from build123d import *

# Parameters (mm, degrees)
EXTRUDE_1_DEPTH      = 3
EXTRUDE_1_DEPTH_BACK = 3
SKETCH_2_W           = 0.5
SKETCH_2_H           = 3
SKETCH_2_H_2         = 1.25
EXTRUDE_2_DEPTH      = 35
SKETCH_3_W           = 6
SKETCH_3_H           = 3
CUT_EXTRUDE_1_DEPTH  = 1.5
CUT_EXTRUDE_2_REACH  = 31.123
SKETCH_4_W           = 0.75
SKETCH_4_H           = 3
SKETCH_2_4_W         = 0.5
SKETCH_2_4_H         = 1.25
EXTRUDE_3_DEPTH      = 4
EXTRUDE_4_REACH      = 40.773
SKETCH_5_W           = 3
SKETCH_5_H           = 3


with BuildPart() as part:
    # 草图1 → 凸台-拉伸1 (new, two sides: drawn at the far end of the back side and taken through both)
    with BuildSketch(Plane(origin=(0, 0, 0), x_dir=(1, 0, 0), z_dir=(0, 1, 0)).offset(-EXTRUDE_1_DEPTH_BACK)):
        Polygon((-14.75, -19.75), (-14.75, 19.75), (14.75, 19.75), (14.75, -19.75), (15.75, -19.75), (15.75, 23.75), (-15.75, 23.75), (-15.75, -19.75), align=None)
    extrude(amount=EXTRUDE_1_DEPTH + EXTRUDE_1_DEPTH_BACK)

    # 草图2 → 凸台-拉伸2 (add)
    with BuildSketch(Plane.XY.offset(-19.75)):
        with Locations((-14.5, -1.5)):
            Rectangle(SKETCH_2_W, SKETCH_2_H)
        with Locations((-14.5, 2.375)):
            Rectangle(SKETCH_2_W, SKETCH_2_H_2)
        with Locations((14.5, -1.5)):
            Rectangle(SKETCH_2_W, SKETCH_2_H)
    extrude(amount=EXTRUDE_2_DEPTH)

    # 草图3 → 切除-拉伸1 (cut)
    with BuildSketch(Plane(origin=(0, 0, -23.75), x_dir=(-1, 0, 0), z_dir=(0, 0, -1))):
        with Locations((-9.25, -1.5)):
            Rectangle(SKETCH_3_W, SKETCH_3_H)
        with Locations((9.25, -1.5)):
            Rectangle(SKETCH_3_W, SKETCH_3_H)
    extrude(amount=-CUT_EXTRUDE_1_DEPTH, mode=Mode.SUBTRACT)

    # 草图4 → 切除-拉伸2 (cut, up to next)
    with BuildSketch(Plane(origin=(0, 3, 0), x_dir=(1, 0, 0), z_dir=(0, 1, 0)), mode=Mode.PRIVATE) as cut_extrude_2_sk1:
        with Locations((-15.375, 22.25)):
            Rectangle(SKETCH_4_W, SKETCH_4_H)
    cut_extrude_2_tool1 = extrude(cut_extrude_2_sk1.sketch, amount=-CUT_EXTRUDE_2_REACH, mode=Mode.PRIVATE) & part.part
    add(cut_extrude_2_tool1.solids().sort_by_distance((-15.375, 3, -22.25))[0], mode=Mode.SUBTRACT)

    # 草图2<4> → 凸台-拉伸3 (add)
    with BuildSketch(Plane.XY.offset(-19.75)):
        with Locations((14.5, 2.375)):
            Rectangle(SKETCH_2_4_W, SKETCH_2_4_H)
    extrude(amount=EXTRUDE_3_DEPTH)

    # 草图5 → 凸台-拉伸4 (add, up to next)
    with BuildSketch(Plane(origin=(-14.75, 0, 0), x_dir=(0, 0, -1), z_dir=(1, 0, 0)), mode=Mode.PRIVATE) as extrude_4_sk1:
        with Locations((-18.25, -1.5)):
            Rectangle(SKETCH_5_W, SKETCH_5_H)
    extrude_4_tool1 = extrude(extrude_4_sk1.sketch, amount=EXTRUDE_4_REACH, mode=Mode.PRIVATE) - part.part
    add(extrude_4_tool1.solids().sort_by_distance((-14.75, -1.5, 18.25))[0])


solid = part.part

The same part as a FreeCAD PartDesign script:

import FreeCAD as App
import Part
import Sketcher
Q = App.Units.Quantity

doc = App.newDocument("Part")
body = doc.addObject("PartDesign::Body", "Body")

# Sketch on XZ plane
sketch1 = body.newObject("Sketcher::SketchObject", "Sketch")
sketch1.AttachmentSupport = (doc.getObject("XZ_Plane"), [""])
sketch1.MapMode = "FlatFace"
sketch1.addGeometry([
    Part.LineSegment(App.Vector(-14.75, 19.75, 0), App.Vector(-14.75, -19.75, 0)),  # 0
    Part.LineSegment(App.Vector(-14.75, -19.75, 0), App.Vector(14.75, -19.75, 0)),  # 1
    Part.LineSegment(App.Vector(14.75, -19.75, 0), App.Vector(14.75, 19.75, 0)),  # 2
    Part.LineSegment(App.Vector(14.75, 19.75, 0), App.Vector(15.75, 19.75, 0)),  # 3
    Part.LineSegment(App.Vector(15.75, 19.75, 0), App.Vector(15.75, -23.75, 0)),  # 4
    Part.LineSegment(App.Vector(15.75, -23.75, 0), App.Vector(-15.75, -23.75, 0)),  # 5
    Part.LineSegment(App.Vector(-15.75, -23.75, 0), App.Vector(-15.75, 19.75, 0)),  # 6
    Part.LineSegment(App.Vector(-15.75, 19.75, 0), App.Vector(-14.75, 19.75, 0)),  # 7
], False)
sketch1.addConstraint([
    Sketcher.Constraint("Coincident", 0, 2, 1, 1),
    Sketcher.Constraint("Coincident", 1, 2, 2, 1),
    Sketcher.Constraint("Coincident", 2, 2, 3, 1),
    Sketcher.Constraint("Coincident", 3, 2, 4, 1),
    Sketcher.Constraint("Coincident", 4, 2, 5, 1),
    Sketcher.Constraint("Coincident", 5, 2, 6, 1),
    Sketcher.Constraint("Coincident", 6, 2, 7, 1),
    Sketcher.Constraint("Coincident", 7, 2, 0, 1),
    Sketcher.Constraint("Vertical", 0),
    Sketcher.Constraint("Horizontal", 1),
    Sketcher.Constraint("Vertical", 2),
    Sketcher.Constraint("Horizontal", 3),
    Sketcher.Constraint("Vertical", 4),
    Sketcher.Constraint("Horizontal", 5),
    Sketcher.Constraint("Vertical", 6),
    Sketcher.Constraint("Horizontal", 7),
    Sketcher.Constraint("Symmetric", 0, 2, 2, 2, -1, 1),
    Sketcher.Constraint("Symmetric", 3, 2, 6, 2, -2),
    Sketcher.Constraint("DistanceX", 3, 1, 3, 2, Q("1 mm")),
    Sketcher.Constraint("DistanceX", 1, 1, 1, 2, Q("29.5 mm")),
    Sketcher.Constraint("DistanceY", 0, 2, 0, 1, Q("39.5 mm")),
    Sketcher.Constraint("DistanceY", 4, 2, 4, 1, Q("43.5 mm")),
])
pad1 = body.newObject("PartDesign::Pad", "Pad")
pad1.Profile = sketch1
pad1.Type = "TwoLengths"
pad1.Length = 3
pad1.Length2 = 3
pad1.Reversed = True

# Sketch on XY plane
sketch2 = body.newObject("Sketcher::SketchObject", "Sketch001")
sketch2.AttachmentSupport = (doc.getObject("XY_Plane"), [""])
sketch2.MapMode = "FlatFace"
sketch2.AttachmentOffset = App.Placement(App.Vector(0, 0, -19.75), App.Rotation())
sketch2.addGeometry([
    Part.LineSegment(App.Vector(-14.75, 0, 0), App.Vector(-14.75, -3, 0)),  # 0
    Part.LineSegment(App.Vector(-14.75, -3, 0), App.Vector(-14.25, -3, 0)),  # 1
    Part.LineSegment(App.Vector(-14.25, -3, 0), App.Vector(-14.25, 0, 0)),  # 2
    Part.LineSegment(App.Vector(-14.25, 0, 0), App.Vector(-14.75, 0, 0)),  # 3
    Part.LineSegment(App.Vector(-14.75, 3, 0), App.Vector(-14.75, 1.75, 0)),  # 4
    Part.LineSegment(App.Vector(-14.75, 1.75, 0), App.Vector(-14.25, 1.75, 0)),  # 5
    Part.LineSegment(App.Vector(-14.25, 1.75, 0), App.Vector(-14.25, 3, 0)),  # 6
    Part.LineSegment(App.Vector(-14.25, 3, 0), App.Vector(-14.75, 3, 0)),  # 7
    Part.LineSegment(App.Vector(14.25, 0, 0), App.Vector(14.25, -3, 0)),  # 8
    Part.LineSegment(App.Vector(14.25, -3, 0), App.Vector(14.75, -3, 0)),  # 9
    Part.LineSegment(App.Vector(14.75, -3, 0), App.Vector(14.75, 0, 0)),  # 10
    Part.LineSegment(App.Vector(14.75, 0, 0), App.Vector(14.25, 0, 0)),  # 11
], False)
sketch2.addConstraint([
    Sketcher.Constraint("Coincident", 0, 2, 1, 1),
    Sketcher.Constraint("Coincident", 1, 2, 2, 1),
    Sketcher.Constraint("Coincident", 2, 2, 3, 1),
    Sketcher.Constraint("Coincident", 3, 2, 0, 1),
    Sketcher.Constraint("Coincident", 4, 2, 5, 1),
    Sketcher.Constraint("Coincident", 5, 2, 6, 1),
    Sketcher.Constraint("Coincident", 6, 2, 7, 1),
    Sketcher.Constraint("Coincident", 7, 2, 4, 1),
    Sketcher.Constraint("Coincident", 8, 2, 9, 1),
    Sketcher.Constraint("Coincident", 9, 2, 10, 1),
    Sketcher.Constraint("Coincident", 10, 2, 11, 1),
    Sketcher.Constraint("Coincident", 11, 2, 8, 1),
    Sketcher.Constraint("Vertical", 0),
    Sketcher.Constraint("Horizontal", 1),
    Sketcher.Constraint("Vertical", 2),
    Sketcher.Constraint("Horizontal", 3),
    Sketcher.Constraint("Vertical", 4),
    Sketcher.Constraint("Horizontal", 5),
    Sketcher.Constraint("Vertical", 6),
    Sketcher.Constraint("Horizontal", 7),
    Sketcher.Constraint("Vertical", 8),
    Sketcher.Constraint("Horizontal", 9),
    Sketcher.Constraint("Vertical", 10),
    Sketcher.Constraint("Horizontal", 11),
    Sketcher.Constraint("Symmetric", 6, 2, 8, 2, -1, 1),
    Sketcher.Constraint("Symmetric", 3, 2, 10, 2, -1, 1),
    Sketcher.Constraint("Symmetric", 1, 2, 8, 2, -2),
    Sketcher.Constraint("PointOnObject", 2, 2, -1),
    Sketcher.Constraint("Vertical", 3, 2, 4, 2),
    Sketcher.Constraint("DistanceY", 0, 2, 0, 1, Q("3 mm")),
    Sketcher.Constraint("DistanceX", 1, 1, 1, 2, Q("0.5 mm")),
    Sketcher.Constraint("DistanceX", 0, 2, 8, 2, Q("29 mm")),
    Sketcher.Constraint("DistanceY", 4, 2, 4, 1, Q("1.25 mm")),
])
pad2 = body.newObject("PartDesign::Pad", "Pad001")
pad2.Profile = sketch2
pad2.Length = 35

# Sketch on XY plane
sketch3 = body.newObject("Sketcher::SketchObject", "Sketch002")
sketch3.AttachmentSupport = (doc.getObject("XY_Plane"), [""])
sketch3.MapMode = "FlatFace"
sketch3.AttachmentOffset = App.Placement(App.Vector(0, 0, -23.75), App.Rotation())
sketch3.addGeometry([
    Part.LineSegment(App.Vector(12.25, 0, 0), App.Vector(12.25, -3, 0)),  # 0
    Part.LineSegment(App.Vector(12.25, -3, 0), App.Vector(6.25, -3, 0)),  # 1
    Part.LineSegment(App.Vector(6.25, -3, 0), App.Vector(6.25, 0, 0)),  # 2
    Part.LineSegment(App.Vector(6.25, 0, 0), App.Vector(12.25, 0, 0)),  # 3
    Part.LineSegment(App.Vector(-6.25, 0, 0), App.Vector(-6.25, -3, 0)),  # 4
    Part.LineSegment(App.Vector(-6.25, -3, 0), App.Vector(-12.25, -3, 0)),  # 5
    Part.LineSegment(App.Vector(-12.25, -3, 0), App.Vector(-12.25, 0, 0)),  # 6
    Part.LineSegment(App.Vector(-12.25, 0, 0), App.Vector(-6.25, 0, 0)),  # 7
], False)
sketch3.addConstraint([
    Sketcher.Constraint("Coincident", 0, 2, 1, 1),
    Sketcher.Constraint("Coincident", 1, 2, 2, 1),
    Sketcher.Constraint("Coincident", 2, 2, 3, 1),
    Sketcher.Constraint("Coincident", 3, 2, 0, 1),
    Sketcher.Constraint("Coincident", 4, 2, 5, 1),
    Sketcher.Constraint("Coincident", 5, 2, 6, 1),
    Sketcher.Constraint("Coincident", 6, 2, 7, 1),
    Sketcher.Constraint("Coincident", 7, 2, 4, 1),
    Sketcher.Constraint("Vertical", 0),
    Sketcher.Constraint("Horizontal", 1),
    Sketcher.Constraint("Vertical", 2),
    Sketcher.Constraint("Horizontal", 3),
    Sketcher.Constraint("Vertical", 4),
    Sketcher.Constraint("Horizontal", 5),
    Sketcher.Constraint("Vertical", 6),
    Sketcher.Constraint("Horizontal", 7),
    Sketcher.Constraint("Symmetric", 3, 2, 6, 2, -1, 1),
    Sketcher.Constraint("Symmetric", 1, 2, 4, 2, -2),
    Sketcher.Constraint("PointOnObject", 2, 2, -1),
    Sketcher.Constraint("DistanceX", 1, 2, 1, 1, Q("6 mm")),
    Sketcher.Constraint("DistanceY", 0, 2, 0, 1, Q("3 mm")),
    Sketcher.Constraint("DistanceX", 4, 2, 1, 2, Q("12.5 mm")),
])
pocket1 = body.newObject("PartDesign::Pocket", "Pocket")
pocket1.Profile = sketch3
pocket1.Length = 1.5
pocket1.Reversed = True

# Sketch on XZ plane
sketch4 = body.newObject("Sketcher::SketchObject", "Sketch003")
sketch4.AttachmentSupport = (doc.getObject("XZ_Plane"), [""])
sketch4.MapMode = "FlatFace"
sketch4.AttachmentOffset = App.Placement(App.Vector(0, 0, -3), App.Rotation())
sketch4.addGeometry([
    Part.LineSegment(App.Vector(-15.75, -23.75, 0), App.Vector(-15.75, -20.75, 0)),
    Part.LineSegment(App.Vector(-15.75, -20.75, 0), App.Vector(-15, -20.75, 0)),
    Part.LineSegment(App.Vector(-15, -20.75, 0), App.Vector(-15, -23.75, 0)),
    Part.LineSegment(App.Vector(-15, -23.75, 0), App.Vector(-15.75, -23.75, 0)),
], False)
sketch4.addConstraint([
    Sketcher.Constraint("Coincident", 0, 2, 1, 1),
    Sketcher.Constraint("Coincident", 1, 2, 2, 1),
    Sketcher.Constraint("Coincident", 2, 2, 3, 1),
    Sketcher.Constraint("Coincident", 3, 2, 0, 1),
    Sketcher.Constraint("Vertical", 0),
    Sketcher.Constraint("Horizontal", 1),
    Sketcher.Constraint("Vertical", 2),
    Sketcher.Constraint("Horizontal", 3),
    Sketcher.Constraint("DistanceY", 0, 1, 0, 2, Q("3 mm")),
    Sketcher.Constraint("DistanceX", 1, 2, -1, 1, Q("15 mm")),
    Sketcher.Constraint("DistanceX", 1, 1, 1, 2, Q("0.75 mm")),
    Sketcher.Constraint("DistanceY", 0, 2, -1, 1, Q("20.75 mm")),
])
pocket2 = body.newObject("PartDesign::Pocket", "Pocket001")
pocket2.Profile = sketch4
pocket2.Type = "UpToFirst"
pocket2.Reversed = True

# Sketch on XY plane
sketch5 = body.newObject("Sketcher::SketchObject", "Sketch004")
sketch5.AttachmentSupport = (doc.getObject("XY_Plane"), [""])
sketch5.MapMode = "FlatFace"
sketch5.AttachmentOffset = App.Placement(App.Vector(0, 0, -19.75), App.Rotation())
sketch5.addGeometry([
    Part.LineSegment(App.Vector(14.25, 3, 0), App.Vector(14.25, 1.75, 0)),
    Part.LineSegment(App.Vector(14.25, 1.75, 0), App.Vector(14.75, 1.75, 0)),
    Part.LineSegment(App.Vector(14.75, 1.75, 0), App.Vector(14.75, 3, 0)),
    Part.LineSegment(App.Vector(14.75, 3, 0), App.Vector(14.25, 3, 0)),
], False)
sketch5.addConstraint([
    Sketcher.Constraint("Coincident", 0, 2, 1, 1),
    Sketcher.Constraint("Coincident", 1, 2, 2, 1),
    Sketcher.Constraint("Coincident", 2, 2, 3, 1),
    Sketcher.Constraint("Coincident", 3, 2, 0, 1),
    Sketcher.Constraint("Vertical", 0),
    Sketcher.Constraint("Horizontal", 1),
    Sketcher.Constraint("Vertical", 2),
    Sketcher.Constraint("Horizontal", 3),
    Sketcher.Constraint("DistanceX", 1, 1, 1, 2, Q("0.5 mm")),
    Sketcher.Constraint("DistanceY", -1, 1, 2, 2, Q("3 mm")),
    Sketcher.Constraint("DistanceY", 0, 2, 0, 1, Q("1.25 mm")),
    Sketcher.Constraint("DistanceX", -1, 1, 0, 2, Q("14.25 mm")),
])
pad3 = body.newObject("PartDesign::Pad", "Pad002")
pad3.Profile = sketch5
pad3.Length = 4

# Sketch on YZ plane
sketch6 = body.newObject("Sketcher::SketchObject", "Sketch005")
sketch6.AttachmentSupport = (doc.getObject("YZ_Plane"), [""])
sketch6.MapMode = "FlatFace"
sketch6.AttachmentOffset = App.Placement(App.Vector(0, 0, -14.75), App.Rotation())
sketch6.addGeometry([
    Part.LineSegment(App.Vector(0, 19.75, 0), App.Vector(-3, 19.75, 0)),
    Part.LineSegment(App.Vector(-3, 19.75, 0), App.Vector(-3, 16.75, 0)),
    Part.LineSegment(App.Vector(-3, 16.75, 0), App.Vector(0, 16.75, 0)),
    Part.LineSegment(App.Vector(0, 16.75, 0), App.Vector(0, 19.75, 0)),
], False)
sketch6.addConstraint([
    Sketcher.Constraint("Coincident", 0, 2, 1, 1),
    Sketcher.Constraint("Coincident", 1, 2, 2, 1),
    Sketcher.Constraint("Coincident", 2, 2, 3, 1),
    Sketcher.Constraint("Coincident", 3, 2, 0, 1),
    Sketcher.Constraint("Horizontal", 0),
    Sketcher.Constraint("Vertical", 1),
    Sketcher.Constraint("Horizontal", 2),
    Sketcher.Constraint("Vertical", 3),
    Sketcher.Constraint("PointOnObject", 2, 2, -2),
    Sketcher.Constraint("Equal", 2, 1),
    Sketcher.Constraint("DistanceX", 0, 2, 0, 1, Q("3 mm")),
    Sketcher.Constraint("DistanceY", -1, 1, 0, 2, Q("19.75 mm")),
])
pad4 = body.newObject("PartDesign::Pad", "Pad003")
pad4.Profile = sketch6
pad4.Type = "UpToFirst"

doc.recompute()
